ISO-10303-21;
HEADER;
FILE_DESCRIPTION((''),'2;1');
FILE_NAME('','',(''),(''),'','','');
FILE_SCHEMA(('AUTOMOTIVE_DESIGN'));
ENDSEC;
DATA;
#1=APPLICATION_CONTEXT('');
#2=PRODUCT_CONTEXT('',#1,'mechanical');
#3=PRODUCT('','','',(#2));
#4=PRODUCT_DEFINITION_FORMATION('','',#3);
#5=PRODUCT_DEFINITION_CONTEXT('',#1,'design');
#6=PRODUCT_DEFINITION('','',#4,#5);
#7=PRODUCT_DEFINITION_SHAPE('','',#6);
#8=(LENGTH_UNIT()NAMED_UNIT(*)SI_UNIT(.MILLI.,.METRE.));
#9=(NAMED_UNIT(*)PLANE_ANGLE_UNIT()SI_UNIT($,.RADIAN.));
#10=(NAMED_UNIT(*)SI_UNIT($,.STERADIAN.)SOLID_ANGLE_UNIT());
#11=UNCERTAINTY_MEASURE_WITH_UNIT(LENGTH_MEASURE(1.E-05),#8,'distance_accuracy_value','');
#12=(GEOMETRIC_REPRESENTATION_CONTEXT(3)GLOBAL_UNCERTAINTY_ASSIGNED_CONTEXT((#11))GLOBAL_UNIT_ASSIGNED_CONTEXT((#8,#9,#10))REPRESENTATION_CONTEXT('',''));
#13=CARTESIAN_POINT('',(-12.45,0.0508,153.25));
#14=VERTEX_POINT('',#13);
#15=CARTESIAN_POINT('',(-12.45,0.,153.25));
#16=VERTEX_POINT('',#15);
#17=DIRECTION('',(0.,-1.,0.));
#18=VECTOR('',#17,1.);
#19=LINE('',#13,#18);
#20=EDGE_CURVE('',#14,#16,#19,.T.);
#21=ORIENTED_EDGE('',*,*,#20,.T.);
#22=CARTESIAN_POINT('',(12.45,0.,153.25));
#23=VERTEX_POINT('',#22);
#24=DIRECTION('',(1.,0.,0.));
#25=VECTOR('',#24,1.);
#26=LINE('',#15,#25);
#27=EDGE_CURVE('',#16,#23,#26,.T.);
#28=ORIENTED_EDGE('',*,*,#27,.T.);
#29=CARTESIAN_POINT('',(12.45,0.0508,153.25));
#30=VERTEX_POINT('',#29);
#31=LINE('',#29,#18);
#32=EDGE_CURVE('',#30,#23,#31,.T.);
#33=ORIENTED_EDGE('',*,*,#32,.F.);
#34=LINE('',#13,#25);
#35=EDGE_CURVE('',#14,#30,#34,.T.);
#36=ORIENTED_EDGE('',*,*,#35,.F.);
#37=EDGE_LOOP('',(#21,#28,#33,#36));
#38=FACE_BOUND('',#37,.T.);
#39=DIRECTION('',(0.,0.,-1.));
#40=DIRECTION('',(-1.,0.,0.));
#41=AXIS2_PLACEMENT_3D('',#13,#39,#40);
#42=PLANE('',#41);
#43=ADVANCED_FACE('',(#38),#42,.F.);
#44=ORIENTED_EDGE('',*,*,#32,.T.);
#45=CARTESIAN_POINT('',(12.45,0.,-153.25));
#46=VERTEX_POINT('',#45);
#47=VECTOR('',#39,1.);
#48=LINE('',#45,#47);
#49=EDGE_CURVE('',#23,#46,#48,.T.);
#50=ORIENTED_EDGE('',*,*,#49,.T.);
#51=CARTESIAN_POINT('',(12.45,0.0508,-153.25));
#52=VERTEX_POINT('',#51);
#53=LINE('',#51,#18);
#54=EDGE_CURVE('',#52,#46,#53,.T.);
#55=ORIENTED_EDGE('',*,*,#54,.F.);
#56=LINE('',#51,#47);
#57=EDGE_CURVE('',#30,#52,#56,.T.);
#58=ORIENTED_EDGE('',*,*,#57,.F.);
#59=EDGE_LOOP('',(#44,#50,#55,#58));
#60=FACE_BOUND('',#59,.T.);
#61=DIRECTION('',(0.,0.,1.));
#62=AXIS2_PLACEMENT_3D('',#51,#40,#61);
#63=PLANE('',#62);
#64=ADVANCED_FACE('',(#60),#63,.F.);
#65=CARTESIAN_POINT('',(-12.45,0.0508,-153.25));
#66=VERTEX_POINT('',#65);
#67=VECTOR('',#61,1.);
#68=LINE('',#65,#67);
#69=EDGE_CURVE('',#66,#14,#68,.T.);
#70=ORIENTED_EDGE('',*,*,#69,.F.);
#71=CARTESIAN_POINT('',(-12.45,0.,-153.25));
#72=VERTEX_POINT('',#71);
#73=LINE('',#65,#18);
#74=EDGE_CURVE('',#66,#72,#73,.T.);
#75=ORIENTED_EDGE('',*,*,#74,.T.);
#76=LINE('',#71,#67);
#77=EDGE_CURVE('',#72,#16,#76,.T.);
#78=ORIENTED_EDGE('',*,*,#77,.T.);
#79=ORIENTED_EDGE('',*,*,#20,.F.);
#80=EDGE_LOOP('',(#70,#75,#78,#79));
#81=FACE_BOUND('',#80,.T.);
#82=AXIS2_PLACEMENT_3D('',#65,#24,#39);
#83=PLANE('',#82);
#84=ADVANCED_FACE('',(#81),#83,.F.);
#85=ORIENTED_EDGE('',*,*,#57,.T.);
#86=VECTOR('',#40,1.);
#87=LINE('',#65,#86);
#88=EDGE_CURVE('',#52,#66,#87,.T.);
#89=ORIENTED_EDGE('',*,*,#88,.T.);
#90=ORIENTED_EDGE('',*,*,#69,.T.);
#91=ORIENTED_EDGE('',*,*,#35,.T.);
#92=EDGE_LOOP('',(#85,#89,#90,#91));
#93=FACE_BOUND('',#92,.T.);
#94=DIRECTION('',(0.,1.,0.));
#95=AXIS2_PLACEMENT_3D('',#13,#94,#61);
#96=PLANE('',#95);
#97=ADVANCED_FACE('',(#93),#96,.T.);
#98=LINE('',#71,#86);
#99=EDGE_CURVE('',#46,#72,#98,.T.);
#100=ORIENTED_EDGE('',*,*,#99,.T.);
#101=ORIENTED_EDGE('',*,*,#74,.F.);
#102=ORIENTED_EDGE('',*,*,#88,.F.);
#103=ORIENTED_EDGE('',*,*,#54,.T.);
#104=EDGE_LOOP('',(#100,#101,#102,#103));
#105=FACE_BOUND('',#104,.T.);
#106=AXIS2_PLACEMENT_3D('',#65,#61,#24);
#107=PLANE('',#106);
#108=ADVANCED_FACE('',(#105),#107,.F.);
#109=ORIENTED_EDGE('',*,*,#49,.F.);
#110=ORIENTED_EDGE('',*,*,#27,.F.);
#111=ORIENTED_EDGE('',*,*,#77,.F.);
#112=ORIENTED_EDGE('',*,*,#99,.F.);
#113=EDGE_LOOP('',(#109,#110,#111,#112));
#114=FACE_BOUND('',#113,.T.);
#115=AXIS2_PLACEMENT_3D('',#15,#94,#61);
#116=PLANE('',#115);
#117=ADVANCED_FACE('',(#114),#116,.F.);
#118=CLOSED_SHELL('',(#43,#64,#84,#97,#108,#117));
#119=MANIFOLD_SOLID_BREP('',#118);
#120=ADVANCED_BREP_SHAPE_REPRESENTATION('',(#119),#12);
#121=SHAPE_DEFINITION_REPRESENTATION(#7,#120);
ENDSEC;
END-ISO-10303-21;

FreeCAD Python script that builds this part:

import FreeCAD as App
import Part
import Sketcher
Q = App.Units.Quantity


def add_polygon(sketch, points):
    """Adds a closed chain of lines whose ends are joined by coincident constraints."""
    first, n = sketch.GeometryCount, len(points)
    for a, b in zip(points, points[1:] + points[:1]):
        sketch.addGeometry(Part.LineSegment(App.Vector(*a, 0), App.Vector(*b, 0)), False)
    for i in range(n):
        sketch.addConstraint(Sketcher.Constraint("Coincident", first + i, 2, first + (i + 1) % n, 1))

doc = App.newDocument("Part")
body = doc.addObject("PartDesign::Body", "Body")

sketch1 = body.newObject("Sketcher::SketchObject", "Sketch")
sketch1.AttachmentSupport = (doc.getObject("XZ_Plane"), [""])
sketch1.MapMode = "FlatFace"
add_polygon(sketch1, [(-12, -153), (-12, 153), (12, 153), (12, -153)])
sketch1.addConstraint([
    Sketcher.Constraint("Vertical", 0),
    Sketcher.Constraint("Horizontal", 1),
    Sketcher.Constraint("Vertical", 2),
    Sketcher.Constraint("Horizontal", 3),
    Sketcher.Constraint("Symmetric", 0, 2, 2, 2, -1, 1),
    Sketcher.Constraint("DistanceX", 1, 1, 1, 2, Q("24.9 mm")),
    Sketcher.Constraint("DistanceY", 0, 1, 0, 2, Q("306.5 mm")),
])
pad1 = body.newObject("PartDesign::Pad", "Pad")
pad1.Profile = sketch1
pad1.Length = 0.0508
pad1.Reversed = True

doc.recompute()
